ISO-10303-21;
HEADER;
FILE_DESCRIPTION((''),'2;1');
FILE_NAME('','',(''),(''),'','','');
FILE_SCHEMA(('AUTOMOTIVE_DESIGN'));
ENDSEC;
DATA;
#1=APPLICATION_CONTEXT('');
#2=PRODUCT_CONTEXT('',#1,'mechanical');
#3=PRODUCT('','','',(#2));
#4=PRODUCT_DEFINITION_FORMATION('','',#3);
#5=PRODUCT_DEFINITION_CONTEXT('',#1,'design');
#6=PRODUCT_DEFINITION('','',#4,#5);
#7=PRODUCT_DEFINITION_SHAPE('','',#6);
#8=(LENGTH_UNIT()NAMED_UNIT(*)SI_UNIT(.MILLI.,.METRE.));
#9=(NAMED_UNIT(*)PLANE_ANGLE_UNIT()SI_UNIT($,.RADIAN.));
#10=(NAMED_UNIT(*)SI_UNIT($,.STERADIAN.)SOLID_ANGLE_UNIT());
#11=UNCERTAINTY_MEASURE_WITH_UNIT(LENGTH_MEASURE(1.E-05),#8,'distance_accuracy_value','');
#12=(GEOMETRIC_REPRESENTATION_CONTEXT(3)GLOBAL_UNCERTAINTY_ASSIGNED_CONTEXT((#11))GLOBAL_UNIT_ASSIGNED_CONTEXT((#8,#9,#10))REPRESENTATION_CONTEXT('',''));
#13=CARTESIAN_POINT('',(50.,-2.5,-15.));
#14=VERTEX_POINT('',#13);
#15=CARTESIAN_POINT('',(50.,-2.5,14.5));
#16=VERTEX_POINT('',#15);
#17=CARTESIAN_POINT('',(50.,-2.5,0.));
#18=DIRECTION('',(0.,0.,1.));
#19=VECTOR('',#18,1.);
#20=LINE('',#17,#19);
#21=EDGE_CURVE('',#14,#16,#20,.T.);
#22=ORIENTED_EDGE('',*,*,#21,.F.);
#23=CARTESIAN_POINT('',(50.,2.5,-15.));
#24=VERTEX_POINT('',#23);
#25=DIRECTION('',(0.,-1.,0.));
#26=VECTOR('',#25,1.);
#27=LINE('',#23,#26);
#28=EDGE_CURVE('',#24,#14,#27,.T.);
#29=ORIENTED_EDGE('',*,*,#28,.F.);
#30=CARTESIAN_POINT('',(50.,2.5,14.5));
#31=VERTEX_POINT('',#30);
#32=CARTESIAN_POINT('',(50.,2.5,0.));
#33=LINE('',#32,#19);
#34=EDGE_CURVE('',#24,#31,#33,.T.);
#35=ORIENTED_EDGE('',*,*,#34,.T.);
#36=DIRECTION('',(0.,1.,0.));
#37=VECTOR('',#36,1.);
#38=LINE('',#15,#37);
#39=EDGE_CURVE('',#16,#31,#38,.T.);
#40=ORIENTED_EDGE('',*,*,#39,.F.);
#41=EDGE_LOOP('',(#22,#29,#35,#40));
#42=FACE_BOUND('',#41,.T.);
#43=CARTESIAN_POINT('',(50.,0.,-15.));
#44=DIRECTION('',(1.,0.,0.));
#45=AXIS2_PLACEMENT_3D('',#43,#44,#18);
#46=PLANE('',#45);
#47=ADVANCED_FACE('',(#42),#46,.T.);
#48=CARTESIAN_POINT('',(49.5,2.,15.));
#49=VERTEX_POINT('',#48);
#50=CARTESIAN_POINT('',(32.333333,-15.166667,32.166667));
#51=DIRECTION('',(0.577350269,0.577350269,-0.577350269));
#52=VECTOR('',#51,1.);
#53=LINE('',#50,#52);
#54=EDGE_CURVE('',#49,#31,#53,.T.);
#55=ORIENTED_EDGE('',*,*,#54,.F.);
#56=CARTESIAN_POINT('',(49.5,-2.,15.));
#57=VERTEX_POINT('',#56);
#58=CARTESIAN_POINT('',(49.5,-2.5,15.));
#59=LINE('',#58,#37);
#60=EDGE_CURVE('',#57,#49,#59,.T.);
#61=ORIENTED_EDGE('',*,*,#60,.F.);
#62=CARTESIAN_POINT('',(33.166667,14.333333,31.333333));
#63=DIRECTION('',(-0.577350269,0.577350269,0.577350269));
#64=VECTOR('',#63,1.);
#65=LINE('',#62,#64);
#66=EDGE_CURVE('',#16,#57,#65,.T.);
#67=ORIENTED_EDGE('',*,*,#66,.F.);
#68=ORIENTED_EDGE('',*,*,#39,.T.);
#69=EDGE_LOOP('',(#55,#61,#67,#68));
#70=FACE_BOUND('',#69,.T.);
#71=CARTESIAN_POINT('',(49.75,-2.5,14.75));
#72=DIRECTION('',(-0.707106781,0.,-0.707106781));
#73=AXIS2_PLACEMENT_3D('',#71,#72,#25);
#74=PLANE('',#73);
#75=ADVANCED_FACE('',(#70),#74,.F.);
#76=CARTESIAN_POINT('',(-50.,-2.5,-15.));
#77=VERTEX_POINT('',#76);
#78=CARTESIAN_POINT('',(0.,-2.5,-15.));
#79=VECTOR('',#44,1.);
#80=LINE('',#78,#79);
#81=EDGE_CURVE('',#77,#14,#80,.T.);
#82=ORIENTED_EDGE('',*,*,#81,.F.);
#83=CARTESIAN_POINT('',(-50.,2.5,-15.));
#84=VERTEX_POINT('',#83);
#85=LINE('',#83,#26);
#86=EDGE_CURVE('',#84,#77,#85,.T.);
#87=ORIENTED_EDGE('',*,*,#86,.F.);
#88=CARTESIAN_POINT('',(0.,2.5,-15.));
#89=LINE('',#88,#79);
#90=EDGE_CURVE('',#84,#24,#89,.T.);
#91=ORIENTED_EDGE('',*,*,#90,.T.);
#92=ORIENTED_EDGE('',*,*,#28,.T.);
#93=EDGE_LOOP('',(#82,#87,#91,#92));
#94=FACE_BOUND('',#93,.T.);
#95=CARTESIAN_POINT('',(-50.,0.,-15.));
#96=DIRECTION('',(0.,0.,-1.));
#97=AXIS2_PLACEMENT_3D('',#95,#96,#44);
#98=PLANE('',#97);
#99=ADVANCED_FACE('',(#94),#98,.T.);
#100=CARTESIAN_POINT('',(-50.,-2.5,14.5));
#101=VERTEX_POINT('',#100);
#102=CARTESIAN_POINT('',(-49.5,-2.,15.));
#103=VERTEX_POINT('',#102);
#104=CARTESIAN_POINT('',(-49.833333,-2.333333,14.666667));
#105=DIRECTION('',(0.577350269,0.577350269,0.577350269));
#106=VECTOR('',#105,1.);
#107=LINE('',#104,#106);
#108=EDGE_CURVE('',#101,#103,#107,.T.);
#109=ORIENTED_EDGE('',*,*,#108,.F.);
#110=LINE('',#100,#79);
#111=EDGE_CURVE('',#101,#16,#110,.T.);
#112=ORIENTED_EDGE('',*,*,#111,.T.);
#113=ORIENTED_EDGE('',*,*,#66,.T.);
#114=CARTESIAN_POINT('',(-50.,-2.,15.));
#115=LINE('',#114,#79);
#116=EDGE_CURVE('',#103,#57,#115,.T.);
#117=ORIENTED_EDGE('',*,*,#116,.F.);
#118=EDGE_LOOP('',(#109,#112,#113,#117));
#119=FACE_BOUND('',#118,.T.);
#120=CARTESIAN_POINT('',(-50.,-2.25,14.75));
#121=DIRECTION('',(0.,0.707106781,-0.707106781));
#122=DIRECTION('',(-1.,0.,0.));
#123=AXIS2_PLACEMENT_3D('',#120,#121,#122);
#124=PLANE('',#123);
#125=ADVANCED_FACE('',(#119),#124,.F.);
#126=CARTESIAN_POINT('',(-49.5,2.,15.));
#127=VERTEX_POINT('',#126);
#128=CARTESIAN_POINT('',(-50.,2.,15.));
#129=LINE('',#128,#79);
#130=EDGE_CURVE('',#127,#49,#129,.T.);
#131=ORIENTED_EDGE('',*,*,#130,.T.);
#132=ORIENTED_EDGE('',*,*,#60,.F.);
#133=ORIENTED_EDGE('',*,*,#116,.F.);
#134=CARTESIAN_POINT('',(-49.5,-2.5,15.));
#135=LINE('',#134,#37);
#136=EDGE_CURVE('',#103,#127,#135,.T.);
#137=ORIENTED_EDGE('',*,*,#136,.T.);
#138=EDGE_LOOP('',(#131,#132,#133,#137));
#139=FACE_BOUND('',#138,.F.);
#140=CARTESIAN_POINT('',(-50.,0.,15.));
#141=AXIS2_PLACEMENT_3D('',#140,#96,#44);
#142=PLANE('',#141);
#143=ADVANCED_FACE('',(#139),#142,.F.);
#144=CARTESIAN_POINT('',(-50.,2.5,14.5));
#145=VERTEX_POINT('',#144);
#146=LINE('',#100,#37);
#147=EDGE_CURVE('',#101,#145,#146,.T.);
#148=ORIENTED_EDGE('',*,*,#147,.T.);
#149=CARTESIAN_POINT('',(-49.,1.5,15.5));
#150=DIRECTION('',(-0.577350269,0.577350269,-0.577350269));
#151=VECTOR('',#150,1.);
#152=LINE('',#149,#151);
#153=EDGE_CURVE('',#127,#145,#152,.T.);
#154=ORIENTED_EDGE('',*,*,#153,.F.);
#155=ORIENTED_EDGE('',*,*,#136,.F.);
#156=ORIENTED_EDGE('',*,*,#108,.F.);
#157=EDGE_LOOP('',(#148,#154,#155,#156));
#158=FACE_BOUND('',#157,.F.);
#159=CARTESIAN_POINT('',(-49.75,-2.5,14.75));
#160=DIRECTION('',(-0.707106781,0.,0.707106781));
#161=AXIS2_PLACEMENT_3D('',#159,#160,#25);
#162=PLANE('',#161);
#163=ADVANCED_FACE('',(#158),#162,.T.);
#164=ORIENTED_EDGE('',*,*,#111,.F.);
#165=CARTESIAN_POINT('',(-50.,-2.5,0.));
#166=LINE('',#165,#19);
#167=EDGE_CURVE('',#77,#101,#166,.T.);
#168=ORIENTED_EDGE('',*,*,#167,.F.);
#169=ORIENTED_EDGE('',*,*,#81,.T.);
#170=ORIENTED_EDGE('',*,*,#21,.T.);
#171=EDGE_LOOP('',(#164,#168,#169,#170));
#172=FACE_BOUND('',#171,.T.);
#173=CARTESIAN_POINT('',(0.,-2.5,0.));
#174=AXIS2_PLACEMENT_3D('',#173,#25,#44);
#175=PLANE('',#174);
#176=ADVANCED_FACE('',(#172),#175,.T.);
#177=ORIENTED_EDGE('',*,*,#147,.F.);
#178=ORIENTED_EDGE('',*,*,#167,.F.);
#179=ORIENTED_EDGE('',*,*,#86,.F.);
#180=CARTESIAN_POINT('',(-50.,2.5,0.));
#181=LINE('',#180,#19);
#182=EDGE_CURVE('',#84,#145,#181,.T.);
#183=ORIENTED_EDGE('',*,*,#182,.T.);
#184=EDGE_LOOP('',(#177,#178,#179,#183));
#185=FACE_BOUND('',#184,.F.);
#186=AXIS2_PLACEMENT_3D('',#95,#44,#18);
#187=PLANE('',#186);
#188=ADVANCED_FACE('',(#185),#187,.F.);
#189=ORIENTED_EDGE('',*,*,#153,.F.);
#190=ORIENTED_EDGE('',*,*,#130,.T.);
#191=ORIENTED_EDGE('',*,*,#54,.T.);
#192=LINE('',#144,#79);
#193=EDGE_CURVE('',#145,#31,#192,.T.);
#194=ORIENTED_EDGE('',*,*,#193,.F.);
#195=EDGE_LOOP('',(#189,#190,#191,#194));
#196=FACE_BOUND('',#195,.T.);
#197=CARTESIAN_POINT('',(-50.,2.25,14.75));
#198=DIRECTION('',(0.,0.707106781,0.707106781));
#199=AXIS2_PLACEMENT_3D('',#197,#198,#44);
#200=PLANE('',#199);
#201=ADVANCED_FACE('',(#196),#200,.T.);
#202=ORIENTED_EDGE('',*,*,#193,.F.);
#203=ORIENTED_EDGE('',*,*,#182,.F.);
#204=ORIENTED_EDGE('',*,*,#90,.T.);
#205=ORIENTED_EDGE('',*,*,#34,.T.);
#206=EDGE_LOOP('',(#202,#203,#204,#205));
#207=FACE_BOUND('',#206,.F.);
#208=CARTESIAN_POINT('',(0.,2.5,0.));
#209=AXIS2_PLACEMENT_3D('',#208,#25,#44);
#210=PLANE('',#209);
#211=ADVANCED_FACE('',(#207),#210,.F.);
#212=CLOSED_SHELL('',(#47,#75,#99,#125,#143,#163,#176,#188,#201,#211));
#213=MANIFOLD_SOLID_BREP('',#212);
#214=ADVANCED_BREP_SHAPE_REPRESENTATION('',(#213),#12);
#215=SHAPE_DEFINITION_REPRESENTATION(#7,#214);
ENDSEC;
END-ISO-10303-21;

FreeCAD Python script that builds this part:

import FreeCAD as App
import Part
import Sketcher
from FreeCAD import Vector


def edges_at(feature, points):
    """Names of the edges that pass closest to the given points."""
    edges = feature.Shape.Edges
    near = lambda p: min(range(len(edges)), key=lambda i: edges[i].distToShape(Part.Vertex(*p))[0])
    return sorted({f"Edge{near(p) + 1}" for p in points})


def add_polygon(sketch, points):
    """Adds a closed chain of lines whose ends are joined by coincident constraints."""
    first, n = sketch.GeometryCount, len(points)
    for a, b in zip(points, points[1:] + points[:1]):
        sketch.addGeometry(Part.LineSegment(App.Vector(*a, 0), App.Vector(*b, 0)), False)
    for i in range(n):
        sketch.addConstraint(Sketcher.Constraint("Coincident", first + i, 2, first + (i + 1) % n, 1))

doc = App.newDocument("Part")
body = doc.addObject("PartDesign::Body", "Body")

# Sketch on XZ plane
sketch1 = doc.addObject("Sketcher::SketchObject", "Sketch")
body.addObject(sketch1)
sketch1.AttachmentSupport = (doc.XZ_Plane, [""])
sketch1.MapMode = "FlatFace"
add_polygon(sketch1, [(-50, 15), (-50, -15), (50, -15), (50, 15)])  # lines 0-3
sketch1.addConstraint([
    Sketcher.Constraint("Vertical", 0),
    Sketcher.Constraint("Horizontal", 1),
    Sketcher.Constraint("Vertical", 2),
    Sketcher.Constraint("Horizontal", 3),
    Sketcher.Constraint("Symmetric", 0, 2, 2, 2, -1, 1),
    Sketcher.Constraint("DistanceX", 1, 1, 1, 2, 100.0),
    Sketcher.Constraint("DistanceY", 0, 2, 0, 1, 30.0),
])
pad1 = doc.addObject("PartDesign::Pad", "Pad")
body.addObject(pad1)
pad1.Profile = sketch1
pad1.Length = 5
pad1.Midplane = True
doc.recompute()

chamfer = doc.addObject("PartDesign::Chamfer", "Chamfer")
body.addObject(chamfer)
chamfer.Base = (pad1, edges_at(pad1, [
    (0, 2.5, 15),
    (0, -2.5, 15),
    (-50, 0, 15),
    (50, 0, 15),
]))
chamfer.Size = 0.5

doc.recompute()
